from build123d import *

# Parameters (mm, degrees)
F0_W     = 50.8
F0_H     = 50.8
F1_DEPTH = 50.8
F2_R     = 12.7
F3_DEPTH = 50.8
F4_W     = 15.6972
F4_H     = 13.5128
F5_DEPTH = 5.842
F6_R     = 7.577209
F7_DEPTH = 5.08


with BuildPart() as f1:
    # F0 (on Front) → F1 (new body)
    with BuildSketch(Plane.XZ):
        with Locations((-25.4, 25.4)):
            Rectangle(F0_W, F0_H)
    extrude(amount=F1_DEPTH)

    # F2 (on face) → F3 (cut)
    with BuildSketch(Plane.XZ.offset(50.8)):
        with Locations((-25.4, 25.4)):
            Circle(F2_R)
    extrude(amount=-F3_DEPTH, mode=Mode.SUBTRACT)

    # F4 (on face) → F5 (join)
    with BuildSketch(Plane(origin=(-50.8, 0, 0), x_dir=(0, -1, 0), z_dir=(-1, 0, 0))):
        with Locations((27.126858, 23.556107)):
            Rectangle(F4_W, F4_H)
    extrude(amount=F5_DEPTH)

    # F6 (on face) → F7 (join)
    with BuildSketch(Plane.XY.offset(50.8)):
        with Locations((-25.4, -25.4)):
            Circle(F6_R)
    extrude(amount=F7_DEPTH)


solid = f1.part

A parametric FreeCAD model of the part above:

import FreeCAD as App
import Part
import Sketcher

V = App.Vector
Q = App.Units.Quantity

doc = App.newDocument("Part")
body = doc.addObject("PartDesign::Body", "Body")

# Sketch on XZ plane
sketch1 = body.newObject("Sketcher::SketchObject", "Sketch")
sketch1.AttachmentSupport = (doc.getObject("XZ_Plane"), [""])
sketch1.MapMode = "FlatFace"
sketch1.addGeometry([
    Part.LineSegment(V(-50.8, 50.8, 0), V(-50.8, 0, 0)),
    Part.LineSegment(V(-50.8, 0, 0), V(0, 0, 0)),
    Part.LineSegment(V(0, 0, 0), V(0, 50.8, 0)),
    Part.LineSegment(V(0, 50.8, 0), V(-50.8, 50.8, 0)),
], False)
sketch1.addConstraint([
    Sketcher.Constraint("Coincident", 0, 2, 1, 1),
    Sketcher.Constraint("Coincident", 1, 2, 2, 1),
    Sketcher.Constraint("Coincident", 2, 2, 3, 1),
    Sketcher.Constraint("Coincident", 3, 2, 0, 1),
    Sketcher.Constraint("Vertical", 0),
    Sketcher.Constraint("Horizontal", 1),
    Sketcher.Constraint("Vertical", 2),
    Sketcher.Constraint("Horizontal", 3),
    Sketcher.Constraint("Coincident", 1, 2, -1, 1),
    Sketcher.Constraint("Equal", 3, 0),
    Sketcher.Constraint("DistanceX", 1, 1, 1, 2, Q("2 in")),
])
pad1 = body.newObject("PartDesign::Pad", "Pad")
pad1.Profile = sketch1
pad1.Length = Q("2 in")

# Sketch on XZ plane
sketch2 = body.newObject("Sketcher::SketchObject", "Sketch001")
sketch2.AttachmentSupport = (doc.getObject("XZ_Plane"), [""])
sketch2.MapMode = "FlatFace"
sketch2.AttachmentOffset = App.Placement(V(0, 0, 2 * 25.4), App.Rotation())
sketch2.addGeometry(Part.Circle(V(-25.4, 25.4, 0), V(0, 0, 1), 12.7), False)
sketch2.addConstraint([
    Sketcher.Constraint("Diameter", 0, Q("1 in")),
    Sketcher.Constraint("DistanceX", 0, 3, -1, 1, Q("1 in")),
    Sketcher.Constraint("DistanceY", -1, 1, 0, 3, Q("1 in")),
])
pocket1 = body.newObject("PartDesign::Pocket", "Pocket")
pocket1.Profile = sketch2
pocket1.Length = Q("2 in")

# Sketch on YZ plane
sketch3 = body.newObject("Sketcher::SketchObject", "Sketch002")
sketch3.AttachmentSupport = (doc.getObject("YZ_Plane"), [""])
sketch3.MapMode = "FlatFace"
sketch3.AttachmentOffset = App.Placement(V(0, 0, -2 * 25.4), App.Rotation())
sketch3.addGeometry([
    Part.LineSegment(V(-19.278258, 30.312507, 0), V(-19.278258, 16.799707, 0)),
    Part.LineSegment(V(-19.278258, 16.799707, 0), V(-34.975458, 16.799707, 0)),
    Part.LineSegment(V(-34.975458, 16.799707, 0), V(-34.975458, 30.312507, 0)),
    Part.LineSegment(V(-34.975458, 30.312507, 0), V(-19.278258, 30.312507, 0)),
], False)
sketch3.addConstraint([
    Sketcher.Constraint("Coincident", 0, 2, 1, 1),
    Sketcher.Constraint("Coincident", 1, 2, 2, 1),
    Sketcher.Constraint("Coincident", 2, 2, 3, 1),
    Sketcher.Constraint("Coincident", 3, 2, 0, 1),
    Sketcher.Constraint("Vertical", 0),
    Sketcher.Constraint("Horizontal", 1),
    Sketcher.Constraint("Vertical", 2),
    Sketcher.Constraint("Horizontal", 3),
    Sketcher.Constraint("DistanceX", 1, 2, 1, 1, Q("0.618 in")),
    Sketcher.Constraint("DistanceY", 0, 2, 0, 1, Q("0.532 in")),
    Sketcher.Constraint("DistanceX", 0, 2, -1, 1, 19.278258),
    Sketcher.Constraint("DistanceY", -1, 1, 0, 2, 16.799707),
])
pad2 = body.newObject("PartDesign::Pad", "Pad001")
pad2.Profile = sketch3
pad2.Length = Q("0.23 in")
pad2.Reversed = True

# Sketch on XY plane
sketch4 = body.newObject("Sketcher::SketchObject", "Sketch003")
sketch4.AttachmentSupport = (doc.getObject("XY_Plane"), [""])
sketch4.MapMode = "FlatFace"
sketch4.AttachmentOffset = App.Placement(V(0, 0, 2 * 25.4), App.Rotation())
sketch4.addGeometry(Part.Circle(V(-25.4, -25.4, 0), V(0, 0, 1), 7.577209), False)
sketch4.addConstraint([
    Sketcher.Constraint("DistanceX", 0, 3, -1, 1, Q("1 in")),
    Sketcher.Constraint("DistanceY", 0, 3, -1, 1, Q("1 in")),
    Sketcher.Constraint("Diameter", 0, 15.154418),
])
pad3 = body.newObject("PartDesign::Pad", "Pad002")
pad3.Profile = sketch4
pad3.Length = Q("0.2 in")

doc.recompute()
